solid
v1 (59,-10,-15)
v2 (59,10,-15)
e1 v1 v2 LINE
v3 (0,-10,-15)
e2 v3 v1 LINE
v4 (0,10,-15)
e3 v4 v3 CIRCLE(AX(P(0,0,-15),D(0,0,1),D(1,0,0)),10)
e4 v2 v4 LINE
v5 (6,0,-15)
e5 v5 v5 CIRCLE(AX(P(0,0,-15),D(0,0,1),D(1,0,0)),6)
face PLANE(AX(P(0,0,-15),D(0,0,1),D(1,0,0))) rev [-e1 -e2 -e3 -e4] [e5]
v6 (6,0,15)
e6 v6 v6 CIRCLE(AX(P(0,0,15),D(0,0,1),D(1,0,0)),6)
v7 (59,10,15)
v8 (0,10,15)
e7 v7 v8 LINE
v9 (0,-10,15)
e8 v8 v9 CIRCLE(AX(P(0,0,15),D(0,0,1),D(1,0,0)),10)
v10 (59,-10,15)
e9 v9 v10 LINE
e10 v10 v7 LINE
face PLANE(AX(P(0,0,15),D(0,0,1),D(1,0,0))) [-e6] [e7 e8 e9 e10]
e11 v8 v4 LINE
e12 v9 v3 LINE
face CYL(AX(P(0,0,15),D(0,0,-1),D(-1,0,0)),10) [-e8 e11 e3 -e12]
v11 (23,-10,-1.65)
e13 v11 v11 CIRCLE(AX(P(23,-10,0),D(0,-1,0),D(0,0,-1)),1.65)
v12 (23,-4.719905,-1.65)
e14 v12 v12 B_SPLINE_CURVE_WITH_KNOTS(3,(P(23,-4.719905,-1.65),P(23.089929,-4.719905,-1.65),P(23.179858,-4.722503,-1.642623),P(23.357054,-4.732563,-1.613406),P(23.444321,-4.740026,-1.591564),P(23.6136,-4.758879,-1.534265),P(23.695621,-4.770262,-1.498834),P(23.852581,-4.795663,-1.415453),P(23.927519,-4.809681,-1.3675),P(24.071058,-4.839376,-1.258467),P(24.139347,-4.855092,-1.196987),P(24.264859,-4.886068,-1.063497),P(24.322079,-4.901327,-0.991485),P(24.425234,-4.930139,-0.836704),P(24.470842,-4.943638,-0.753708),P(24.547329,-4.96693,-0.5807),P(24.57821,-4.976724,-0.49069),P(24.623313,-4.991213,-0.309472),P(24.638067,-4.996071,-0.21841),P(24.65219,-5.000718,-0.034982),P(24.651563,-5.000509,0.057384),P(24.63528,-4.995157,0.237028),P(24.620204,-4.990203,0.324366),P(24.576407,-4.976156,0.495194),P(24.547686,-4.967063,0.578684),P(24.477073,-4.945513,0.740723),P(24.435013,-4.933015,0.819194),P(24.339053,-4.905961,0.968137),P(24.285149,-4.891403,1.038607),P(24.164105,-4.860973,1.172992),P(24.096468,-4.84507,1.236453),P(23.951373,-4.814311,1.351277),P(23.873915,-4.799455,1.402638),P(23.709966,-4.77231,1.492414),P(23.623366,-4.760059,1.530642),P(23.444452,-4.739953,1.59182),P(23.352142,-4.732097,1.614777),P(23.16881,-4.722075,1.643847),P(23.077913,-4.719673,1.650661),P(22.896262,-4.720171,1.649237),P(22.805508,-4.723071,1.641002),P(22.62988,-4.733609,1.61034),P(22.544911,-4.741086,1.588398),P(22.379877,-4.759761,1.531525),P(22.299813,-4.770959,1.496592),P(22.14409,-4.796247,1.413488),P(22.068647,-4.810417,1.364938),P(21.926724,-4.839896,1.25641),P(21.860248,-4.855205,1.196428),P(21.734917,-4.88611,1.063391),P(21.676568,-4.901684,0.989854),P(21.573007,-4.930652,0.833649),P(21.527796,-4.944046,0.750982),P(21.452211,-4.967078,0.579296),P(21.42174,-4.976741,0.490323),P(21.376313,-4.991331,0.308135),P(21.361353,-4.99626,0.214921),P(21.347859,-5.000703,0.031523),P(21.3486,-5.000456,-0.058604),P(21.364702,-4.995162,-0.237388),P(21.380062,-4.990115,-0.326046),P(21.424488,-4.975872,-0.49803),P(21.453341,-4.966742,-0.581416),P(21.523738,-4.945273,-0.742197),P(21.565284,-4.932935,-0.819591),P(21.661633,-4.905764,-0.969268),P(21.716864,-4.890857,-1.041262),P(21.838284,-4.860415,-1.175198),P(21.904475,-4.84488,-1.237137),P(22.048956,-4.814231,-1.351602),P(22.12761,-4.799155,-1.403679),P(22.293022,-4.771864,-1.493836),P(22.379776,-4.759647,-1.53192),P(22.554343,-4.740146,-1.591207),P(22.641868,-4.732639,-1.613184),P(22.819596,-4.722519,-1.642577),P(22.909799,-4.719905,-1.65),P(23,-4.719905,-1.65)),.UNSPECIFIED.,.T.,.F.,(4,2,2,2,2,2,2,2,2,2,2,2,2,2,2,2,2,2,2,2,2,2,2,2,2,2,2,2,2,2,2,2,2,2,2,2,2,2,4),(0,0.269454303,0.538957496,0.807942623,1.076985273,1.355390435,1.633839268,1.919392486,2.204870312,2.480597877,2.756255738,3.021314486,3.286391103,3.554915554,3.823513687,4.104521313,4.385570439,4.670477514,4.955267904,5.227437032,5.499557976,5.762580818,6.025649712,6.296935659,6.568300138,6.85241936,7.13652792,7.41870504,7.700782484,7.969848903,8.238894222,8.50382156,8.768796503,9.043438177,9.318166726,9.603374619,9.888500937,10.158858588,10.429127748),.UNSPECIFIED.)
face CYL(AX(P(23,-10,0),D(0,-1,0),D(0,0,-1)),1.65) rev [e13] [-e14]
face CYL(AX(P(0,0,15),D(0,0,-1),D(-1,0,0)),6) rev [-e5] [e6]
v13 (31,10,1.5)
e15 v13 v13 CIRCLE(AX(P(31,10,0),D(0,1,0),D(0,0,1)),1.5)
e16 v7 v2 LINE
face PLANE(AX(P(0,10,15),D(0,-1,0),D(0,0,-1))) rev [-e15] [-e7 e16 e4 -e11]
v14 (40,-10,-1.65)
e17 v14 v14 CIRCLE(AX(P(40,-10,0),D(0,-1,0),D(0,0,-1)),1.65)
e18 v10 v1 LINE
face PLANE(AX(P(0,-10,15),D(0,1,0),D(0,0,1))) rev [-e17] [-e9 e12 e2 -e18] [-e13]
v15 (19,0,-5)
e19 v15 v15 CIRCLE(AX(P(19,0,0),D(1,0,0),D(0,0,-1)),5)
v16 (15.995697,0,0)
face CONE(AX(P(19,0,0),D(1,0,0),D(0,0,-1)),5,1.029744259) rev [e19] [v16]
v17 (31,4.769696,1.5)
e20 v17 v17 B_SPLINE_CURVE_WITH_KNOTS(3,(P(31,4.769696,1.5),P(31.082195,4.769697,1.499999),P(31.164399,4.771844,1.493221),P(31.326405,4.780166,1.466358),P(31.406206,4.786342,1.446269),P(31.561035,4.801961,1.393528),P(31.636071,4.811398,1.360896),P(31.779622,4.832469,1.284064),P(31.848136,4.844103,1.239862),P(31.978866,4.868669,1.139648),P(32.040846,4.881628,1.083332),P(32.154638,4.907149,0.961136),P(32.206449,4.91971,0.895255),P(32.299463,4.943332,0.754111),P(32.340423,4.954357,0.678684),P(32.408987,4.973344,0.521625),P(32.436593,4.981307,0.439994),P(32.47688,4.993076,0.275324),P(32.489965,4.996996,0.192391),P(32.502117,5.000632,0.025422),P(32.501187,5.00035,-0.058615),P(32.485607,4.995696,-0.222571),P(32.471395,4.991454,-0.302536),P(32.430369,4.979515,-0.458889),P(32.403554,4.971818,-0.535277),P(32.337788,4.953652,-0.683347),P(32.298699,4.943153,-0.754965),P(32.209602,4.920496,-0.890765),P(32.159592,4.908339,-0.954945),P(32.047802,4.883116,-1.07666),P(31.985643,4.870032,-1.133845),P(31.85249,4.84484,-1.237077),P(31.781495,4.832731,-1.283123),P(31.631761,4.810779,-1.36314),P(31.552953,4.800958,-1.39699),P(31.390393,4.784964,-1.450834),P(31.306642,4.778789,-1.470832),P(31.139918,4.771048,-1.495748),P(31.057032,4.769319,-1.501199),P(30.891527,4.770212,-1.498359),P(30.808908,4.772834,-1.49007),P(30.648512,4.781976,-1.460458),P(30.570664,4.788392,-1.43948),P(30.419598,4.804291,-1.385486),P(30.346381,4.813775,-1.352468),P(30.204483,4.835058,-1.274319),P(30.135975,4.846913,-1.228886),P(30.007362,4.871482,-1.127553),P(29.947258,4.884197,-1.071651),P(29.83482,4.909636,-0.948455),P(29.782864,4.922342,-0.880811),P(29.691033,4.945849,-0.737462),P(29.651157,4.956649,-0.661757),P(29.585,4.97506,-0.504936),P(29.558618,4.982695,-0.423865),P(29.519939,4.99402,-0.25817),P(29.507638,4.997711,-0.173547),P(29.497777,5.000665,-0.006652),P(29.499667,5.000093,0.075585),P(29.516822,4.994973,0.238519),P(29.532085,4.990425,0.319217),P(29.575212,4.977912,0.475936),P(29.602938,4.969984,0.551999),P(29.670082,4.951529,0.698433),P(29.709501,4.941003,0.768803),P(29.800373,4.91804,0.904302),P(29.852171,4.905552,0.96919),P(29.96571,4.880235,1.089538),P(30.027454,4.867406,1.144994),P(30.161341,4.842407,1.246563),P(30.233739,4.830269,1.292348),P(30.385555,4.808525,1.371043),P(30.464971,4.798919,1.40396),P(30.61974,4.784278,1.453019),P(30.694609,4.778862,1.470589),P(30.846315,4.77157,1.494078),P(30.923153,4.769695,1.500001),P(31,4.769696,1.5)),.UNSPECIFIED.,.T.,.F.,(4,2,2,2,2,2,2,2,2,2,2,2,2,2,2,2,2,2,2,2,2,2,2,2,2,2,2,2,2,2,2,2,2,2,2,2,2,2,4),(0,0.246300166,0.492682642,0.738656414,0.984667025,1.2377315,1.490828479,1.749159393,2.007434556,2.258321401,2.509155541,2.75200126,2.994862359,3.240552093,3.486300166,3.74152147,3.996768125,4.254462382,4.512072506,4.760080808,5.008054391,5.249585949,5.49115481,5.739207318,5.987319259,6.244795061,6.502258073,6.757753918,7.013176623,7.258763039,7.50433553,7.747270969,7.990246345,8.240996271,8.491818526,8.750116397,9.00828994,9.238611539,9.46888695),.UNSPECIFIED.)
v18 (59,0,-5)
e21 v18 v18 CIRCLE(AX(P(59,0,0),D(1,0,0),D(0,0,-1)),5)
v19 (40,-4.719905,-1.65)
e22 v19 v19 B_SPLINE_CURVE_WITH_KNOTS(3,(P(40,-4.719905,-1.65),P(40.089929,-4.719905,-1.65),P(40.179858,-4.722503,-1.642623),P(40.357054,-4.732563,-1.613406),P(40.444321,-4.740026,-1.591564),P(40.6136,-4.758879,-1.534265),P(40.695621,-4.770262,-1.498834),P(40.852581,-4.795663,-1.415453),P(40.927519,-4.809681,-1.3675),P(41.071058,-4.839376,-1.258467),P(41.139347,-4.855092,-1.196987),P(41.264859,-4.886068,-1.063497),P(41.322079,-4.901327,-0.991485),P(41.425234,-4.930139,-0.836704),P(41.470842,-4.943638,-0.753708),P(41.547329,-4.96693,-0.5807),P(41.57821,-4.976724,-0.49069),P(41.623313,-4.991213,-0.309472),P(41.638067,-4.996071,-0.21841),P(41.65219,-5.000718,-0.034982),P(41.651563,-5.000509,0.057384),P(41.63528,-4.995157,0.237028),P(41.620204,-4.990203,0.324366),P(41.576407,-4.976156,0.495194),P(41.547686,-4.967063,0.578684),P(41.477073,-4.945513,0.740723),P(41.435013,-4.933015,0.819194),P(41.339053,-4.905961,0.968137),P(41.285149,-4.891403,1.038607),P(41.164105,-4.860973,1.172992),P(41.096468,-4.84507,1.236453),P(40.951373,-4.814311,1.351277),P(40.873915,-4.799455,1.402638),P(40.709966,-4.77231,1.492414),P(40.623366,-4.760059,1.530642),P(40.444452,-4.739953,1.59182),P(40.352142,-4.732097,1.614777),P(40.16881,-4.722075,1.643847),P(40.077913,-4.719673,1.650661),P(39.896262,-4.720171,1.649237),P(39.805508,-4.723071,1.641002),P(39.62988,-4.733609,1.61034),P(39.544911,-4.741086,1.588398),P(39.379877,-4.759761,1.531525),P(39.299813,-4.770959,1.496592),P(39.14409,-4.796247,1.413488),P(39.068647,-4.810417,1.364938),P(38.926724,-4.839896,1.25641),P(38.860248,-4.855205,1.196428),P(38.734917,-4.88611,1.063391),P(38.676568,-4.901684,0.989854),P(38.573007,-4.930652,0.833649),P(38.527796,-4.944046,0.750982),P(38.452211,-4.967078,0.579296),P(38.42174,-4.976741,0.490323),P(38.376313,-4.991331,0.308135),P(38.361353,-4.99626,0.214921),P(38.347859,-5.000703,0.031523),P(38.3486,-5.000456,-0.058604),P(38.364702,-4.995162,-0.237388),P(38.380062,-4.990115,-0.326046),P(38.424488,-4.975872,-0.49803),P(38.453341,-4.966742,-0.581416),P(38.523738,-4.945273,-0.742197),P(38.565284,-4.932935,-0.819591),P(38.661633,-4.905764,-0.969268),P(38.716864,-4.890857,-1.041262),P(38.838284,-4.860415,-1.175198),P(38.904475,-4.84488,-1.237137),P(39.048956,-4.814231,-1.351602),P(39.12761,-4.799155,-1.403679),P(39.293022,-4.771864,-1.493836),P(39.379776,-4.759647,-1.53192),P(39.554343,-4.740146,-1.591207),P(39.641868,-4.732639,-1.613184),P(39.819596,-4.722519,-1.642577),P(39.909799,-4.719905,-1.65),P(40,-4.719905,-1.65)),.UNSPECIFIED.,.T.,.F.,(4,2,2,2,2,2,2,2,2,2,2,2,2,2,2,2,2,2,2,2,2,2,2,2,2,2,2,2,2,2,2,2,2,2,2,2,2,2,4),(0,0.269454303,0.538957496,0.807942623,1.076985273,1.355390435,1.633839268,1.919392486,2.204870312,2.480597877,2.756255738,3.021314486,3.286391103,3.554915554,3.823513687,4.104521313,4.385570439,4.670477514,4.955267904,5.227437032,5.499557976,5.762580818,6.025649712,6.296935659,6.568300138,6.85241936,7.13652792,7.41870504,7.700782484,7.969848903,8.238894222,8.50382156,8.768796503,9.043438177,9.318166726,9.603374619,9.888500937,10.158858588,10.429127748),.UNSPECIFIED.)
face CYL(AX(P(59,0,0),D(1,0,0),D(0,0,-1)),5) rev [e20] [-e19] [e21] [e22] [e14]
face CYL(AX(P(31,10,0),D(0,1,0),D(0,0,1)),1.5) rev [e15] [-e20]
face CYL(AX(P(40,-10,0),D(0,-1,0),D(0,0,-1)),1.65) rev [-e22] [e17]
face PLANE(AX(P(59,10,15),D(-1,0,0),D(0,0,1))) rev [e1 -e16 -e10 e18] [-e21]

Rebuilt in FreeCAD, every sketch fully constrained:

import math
import FreeCAD as App
import Part
import Sketcher
from FreeCAD import Vector

doc = App.newDocument("Part")
body = doc.addObject("PartDesign::Body", "Body")

sketch1 = doc.addObject("Sketcher::SketchObject", "Sketch")
body.addObject(sketch1)
sketch1.AttachmentSupport = (doc.XY_Plane, [""])
sketch1.MapMode = "FlatFace"
sketch1.addGeometry([
    Part.LineSegment(Vector(0, -10, 0), Vector(59, -10, 0)),
    Part.LineSegment(Vector(59, -10, 0), Vector(59, 10, 0)),
    Part.LineSegment(Vector(59, 10, 0), Vector(0, 10, 0)),
    Part.ArcOfCircle(Part.Circle(Vector(0, 0, 0), Vector(0, 0, 1), 10), math.radians(90), math.radians(270)),
    Part.Circle(Vector(0, 0, 0), Vector(0, 0, 1), 6),
], False)
sketch1.addConstraint([
    Sketcher.Constraint("Coincident", 0, 2, 1, 1),
    Sketcher.Constraint("Coincident", 1, 2, 2, 1),
    Sketcher.Constraint("Tangent", 2, 2, 3, 1),
    Sketcher.Constraint("Tangent", 3, 2, 0, 1),
    Sketcher.Constraint("Horizontal", 0),
    Sketcher.Constraint("Vertical", 1),
    Sketcher.Constraint("Horizontal", 2),
    Sketcher.Constraint("Coincident", 3, 3, -1, 1),
    Sketcher.Constraint("Coincident", 4, 3, -1, 1),
    Sketcher.Constraint("Diameter", 4, 12.0),
    Sketcher.Constraint("Radius", 3, 10.0),
    Sketcher.Constraint("DistanceX", 0, 1, 0, 2, 59.0),
])
pad1 = doc.addObject("PartDesign::Pad", "Pad")
body.addObject(pad1)
pad1.Profile = sketch1
pad1.Length = 30
pad1.Midplane = True

sketch2 = doc.addObject("Sketcher::SketchObject", "Sketch001")
body.addObject(sketch2)
sketch2.AttachmentSupport = (doc.YZ_Plane, [""])
sketch2.MapMode = "FlatFace"
sketch2.AttachmentOffset = App.Placement(Vector(0, 0, 59), App.Rotation())
sketch2.addGeometry(Part.Circle(Vector(0, 0, 0), Vector(0, 0, 1), 5), False)
sketch2.addConstraint([
    Sketcher.Constraint("Coincident", 0, 3, -1, 1),
    Sketcher.Constraint("Diameter", 0, 10.0),
])
doc.recompute()
hole = doc.addObject("PartDesign::Hole", "Hole")
body.addObject(hole)
hole.Profile = sketch2
hole.ThreadType = "None"
hole.Diameter = 10
hole.DepthType = "Dimension"
hole.Depth = 40
hole.DrillPoint = "Angled"
hole.DrillPointAngle = 118

sketch3 = doc.addObject("Sketcher::SketchObject", "Sketch002")
body.addObject(sketch3)
sketch3.AttachmentSupport = (doc.XZ_Plane, [""])
sketch3.MapMode = "FlatFace"
sketch3.AttachmentOffset = App.Placement(Vector(0, 0, -10), App.Rotation())
sketch3.addGeometry(Part.Circle(Vector(31, 0, 0), Vector(0, 0, 1), 1.5), False)
sketch3.addConstraint([
    Sketcher.Constraint("PointOnObject", 0, 3, -1),
    Sketcher.Constraint("Diameter", 0, 3.0),
    Sketcher.Constraint("DistanceX", -1, 1, 0, 3, 31.0),
])
doc.recompute()
hole2 = doc.addObject("PartDesign::Hole", "Hole001")
body.addObject(hole2)
hole2.Profile = sketch3
hole2.ThreadType = "None"
hole2.Diameter = 3
hole2.DepthType = "Dimension"
hole2.Depth = 10
hole2.DrillPoint = "Angled"
hole2.DrillPointAngle = 118
hole2.Reversed = True

sketch4 = doc.addObject("Sketcher::SketchObject", "Sketch003")
body.addObject(sketch4)
sketch4.AttachmentSupport = (doc.XZ_Plane, [""])
sketch4.MapMode = "FlatFace"
sketch4.AttachmentOffset = App.Placement(Vector(0, 0, 10), App.Rotation())
sketch4.addGeometry([
    Part.Circle(Vector(40, 0, 0), Vector(0, 0, 1), 1.6),
    Part.Circle(Vector(23, 0, 0), Vector(0, 0, 1), 1.6),
], False)
sketch4.addConstraint([
    Sketcher.Constraint("Equal", 0, 1),
    Sketcher.Constraint("PointOnObject", 0, 3, -1),
    Sketcher.Constraint("PointOnObject", 1, 3, -1),
    Sketcher.Constraint("Diameter", 0, 3.3),
    Sketcher.Constraint("DistanceX", -1, 1, 0, 3, 40.0),
    Sketcher.Constraint("DistanceX", -1, 1, 1, 3, 23.0),
])
doc.recompute()
hole3 = doc.addObject("PartDesign::Hole", "Hole002")
body.addObject(hole3)
hole3.Profile = sketch4
hole3.ThreadType = "None"
hole3.Diameter = 3.3
hole3.DepthType = "Dimension"
hole3.Depth = 11.5
hole3.DrillPoint = "Angled"
hole3.DrillPointAngle = 118

doc.recompute()
